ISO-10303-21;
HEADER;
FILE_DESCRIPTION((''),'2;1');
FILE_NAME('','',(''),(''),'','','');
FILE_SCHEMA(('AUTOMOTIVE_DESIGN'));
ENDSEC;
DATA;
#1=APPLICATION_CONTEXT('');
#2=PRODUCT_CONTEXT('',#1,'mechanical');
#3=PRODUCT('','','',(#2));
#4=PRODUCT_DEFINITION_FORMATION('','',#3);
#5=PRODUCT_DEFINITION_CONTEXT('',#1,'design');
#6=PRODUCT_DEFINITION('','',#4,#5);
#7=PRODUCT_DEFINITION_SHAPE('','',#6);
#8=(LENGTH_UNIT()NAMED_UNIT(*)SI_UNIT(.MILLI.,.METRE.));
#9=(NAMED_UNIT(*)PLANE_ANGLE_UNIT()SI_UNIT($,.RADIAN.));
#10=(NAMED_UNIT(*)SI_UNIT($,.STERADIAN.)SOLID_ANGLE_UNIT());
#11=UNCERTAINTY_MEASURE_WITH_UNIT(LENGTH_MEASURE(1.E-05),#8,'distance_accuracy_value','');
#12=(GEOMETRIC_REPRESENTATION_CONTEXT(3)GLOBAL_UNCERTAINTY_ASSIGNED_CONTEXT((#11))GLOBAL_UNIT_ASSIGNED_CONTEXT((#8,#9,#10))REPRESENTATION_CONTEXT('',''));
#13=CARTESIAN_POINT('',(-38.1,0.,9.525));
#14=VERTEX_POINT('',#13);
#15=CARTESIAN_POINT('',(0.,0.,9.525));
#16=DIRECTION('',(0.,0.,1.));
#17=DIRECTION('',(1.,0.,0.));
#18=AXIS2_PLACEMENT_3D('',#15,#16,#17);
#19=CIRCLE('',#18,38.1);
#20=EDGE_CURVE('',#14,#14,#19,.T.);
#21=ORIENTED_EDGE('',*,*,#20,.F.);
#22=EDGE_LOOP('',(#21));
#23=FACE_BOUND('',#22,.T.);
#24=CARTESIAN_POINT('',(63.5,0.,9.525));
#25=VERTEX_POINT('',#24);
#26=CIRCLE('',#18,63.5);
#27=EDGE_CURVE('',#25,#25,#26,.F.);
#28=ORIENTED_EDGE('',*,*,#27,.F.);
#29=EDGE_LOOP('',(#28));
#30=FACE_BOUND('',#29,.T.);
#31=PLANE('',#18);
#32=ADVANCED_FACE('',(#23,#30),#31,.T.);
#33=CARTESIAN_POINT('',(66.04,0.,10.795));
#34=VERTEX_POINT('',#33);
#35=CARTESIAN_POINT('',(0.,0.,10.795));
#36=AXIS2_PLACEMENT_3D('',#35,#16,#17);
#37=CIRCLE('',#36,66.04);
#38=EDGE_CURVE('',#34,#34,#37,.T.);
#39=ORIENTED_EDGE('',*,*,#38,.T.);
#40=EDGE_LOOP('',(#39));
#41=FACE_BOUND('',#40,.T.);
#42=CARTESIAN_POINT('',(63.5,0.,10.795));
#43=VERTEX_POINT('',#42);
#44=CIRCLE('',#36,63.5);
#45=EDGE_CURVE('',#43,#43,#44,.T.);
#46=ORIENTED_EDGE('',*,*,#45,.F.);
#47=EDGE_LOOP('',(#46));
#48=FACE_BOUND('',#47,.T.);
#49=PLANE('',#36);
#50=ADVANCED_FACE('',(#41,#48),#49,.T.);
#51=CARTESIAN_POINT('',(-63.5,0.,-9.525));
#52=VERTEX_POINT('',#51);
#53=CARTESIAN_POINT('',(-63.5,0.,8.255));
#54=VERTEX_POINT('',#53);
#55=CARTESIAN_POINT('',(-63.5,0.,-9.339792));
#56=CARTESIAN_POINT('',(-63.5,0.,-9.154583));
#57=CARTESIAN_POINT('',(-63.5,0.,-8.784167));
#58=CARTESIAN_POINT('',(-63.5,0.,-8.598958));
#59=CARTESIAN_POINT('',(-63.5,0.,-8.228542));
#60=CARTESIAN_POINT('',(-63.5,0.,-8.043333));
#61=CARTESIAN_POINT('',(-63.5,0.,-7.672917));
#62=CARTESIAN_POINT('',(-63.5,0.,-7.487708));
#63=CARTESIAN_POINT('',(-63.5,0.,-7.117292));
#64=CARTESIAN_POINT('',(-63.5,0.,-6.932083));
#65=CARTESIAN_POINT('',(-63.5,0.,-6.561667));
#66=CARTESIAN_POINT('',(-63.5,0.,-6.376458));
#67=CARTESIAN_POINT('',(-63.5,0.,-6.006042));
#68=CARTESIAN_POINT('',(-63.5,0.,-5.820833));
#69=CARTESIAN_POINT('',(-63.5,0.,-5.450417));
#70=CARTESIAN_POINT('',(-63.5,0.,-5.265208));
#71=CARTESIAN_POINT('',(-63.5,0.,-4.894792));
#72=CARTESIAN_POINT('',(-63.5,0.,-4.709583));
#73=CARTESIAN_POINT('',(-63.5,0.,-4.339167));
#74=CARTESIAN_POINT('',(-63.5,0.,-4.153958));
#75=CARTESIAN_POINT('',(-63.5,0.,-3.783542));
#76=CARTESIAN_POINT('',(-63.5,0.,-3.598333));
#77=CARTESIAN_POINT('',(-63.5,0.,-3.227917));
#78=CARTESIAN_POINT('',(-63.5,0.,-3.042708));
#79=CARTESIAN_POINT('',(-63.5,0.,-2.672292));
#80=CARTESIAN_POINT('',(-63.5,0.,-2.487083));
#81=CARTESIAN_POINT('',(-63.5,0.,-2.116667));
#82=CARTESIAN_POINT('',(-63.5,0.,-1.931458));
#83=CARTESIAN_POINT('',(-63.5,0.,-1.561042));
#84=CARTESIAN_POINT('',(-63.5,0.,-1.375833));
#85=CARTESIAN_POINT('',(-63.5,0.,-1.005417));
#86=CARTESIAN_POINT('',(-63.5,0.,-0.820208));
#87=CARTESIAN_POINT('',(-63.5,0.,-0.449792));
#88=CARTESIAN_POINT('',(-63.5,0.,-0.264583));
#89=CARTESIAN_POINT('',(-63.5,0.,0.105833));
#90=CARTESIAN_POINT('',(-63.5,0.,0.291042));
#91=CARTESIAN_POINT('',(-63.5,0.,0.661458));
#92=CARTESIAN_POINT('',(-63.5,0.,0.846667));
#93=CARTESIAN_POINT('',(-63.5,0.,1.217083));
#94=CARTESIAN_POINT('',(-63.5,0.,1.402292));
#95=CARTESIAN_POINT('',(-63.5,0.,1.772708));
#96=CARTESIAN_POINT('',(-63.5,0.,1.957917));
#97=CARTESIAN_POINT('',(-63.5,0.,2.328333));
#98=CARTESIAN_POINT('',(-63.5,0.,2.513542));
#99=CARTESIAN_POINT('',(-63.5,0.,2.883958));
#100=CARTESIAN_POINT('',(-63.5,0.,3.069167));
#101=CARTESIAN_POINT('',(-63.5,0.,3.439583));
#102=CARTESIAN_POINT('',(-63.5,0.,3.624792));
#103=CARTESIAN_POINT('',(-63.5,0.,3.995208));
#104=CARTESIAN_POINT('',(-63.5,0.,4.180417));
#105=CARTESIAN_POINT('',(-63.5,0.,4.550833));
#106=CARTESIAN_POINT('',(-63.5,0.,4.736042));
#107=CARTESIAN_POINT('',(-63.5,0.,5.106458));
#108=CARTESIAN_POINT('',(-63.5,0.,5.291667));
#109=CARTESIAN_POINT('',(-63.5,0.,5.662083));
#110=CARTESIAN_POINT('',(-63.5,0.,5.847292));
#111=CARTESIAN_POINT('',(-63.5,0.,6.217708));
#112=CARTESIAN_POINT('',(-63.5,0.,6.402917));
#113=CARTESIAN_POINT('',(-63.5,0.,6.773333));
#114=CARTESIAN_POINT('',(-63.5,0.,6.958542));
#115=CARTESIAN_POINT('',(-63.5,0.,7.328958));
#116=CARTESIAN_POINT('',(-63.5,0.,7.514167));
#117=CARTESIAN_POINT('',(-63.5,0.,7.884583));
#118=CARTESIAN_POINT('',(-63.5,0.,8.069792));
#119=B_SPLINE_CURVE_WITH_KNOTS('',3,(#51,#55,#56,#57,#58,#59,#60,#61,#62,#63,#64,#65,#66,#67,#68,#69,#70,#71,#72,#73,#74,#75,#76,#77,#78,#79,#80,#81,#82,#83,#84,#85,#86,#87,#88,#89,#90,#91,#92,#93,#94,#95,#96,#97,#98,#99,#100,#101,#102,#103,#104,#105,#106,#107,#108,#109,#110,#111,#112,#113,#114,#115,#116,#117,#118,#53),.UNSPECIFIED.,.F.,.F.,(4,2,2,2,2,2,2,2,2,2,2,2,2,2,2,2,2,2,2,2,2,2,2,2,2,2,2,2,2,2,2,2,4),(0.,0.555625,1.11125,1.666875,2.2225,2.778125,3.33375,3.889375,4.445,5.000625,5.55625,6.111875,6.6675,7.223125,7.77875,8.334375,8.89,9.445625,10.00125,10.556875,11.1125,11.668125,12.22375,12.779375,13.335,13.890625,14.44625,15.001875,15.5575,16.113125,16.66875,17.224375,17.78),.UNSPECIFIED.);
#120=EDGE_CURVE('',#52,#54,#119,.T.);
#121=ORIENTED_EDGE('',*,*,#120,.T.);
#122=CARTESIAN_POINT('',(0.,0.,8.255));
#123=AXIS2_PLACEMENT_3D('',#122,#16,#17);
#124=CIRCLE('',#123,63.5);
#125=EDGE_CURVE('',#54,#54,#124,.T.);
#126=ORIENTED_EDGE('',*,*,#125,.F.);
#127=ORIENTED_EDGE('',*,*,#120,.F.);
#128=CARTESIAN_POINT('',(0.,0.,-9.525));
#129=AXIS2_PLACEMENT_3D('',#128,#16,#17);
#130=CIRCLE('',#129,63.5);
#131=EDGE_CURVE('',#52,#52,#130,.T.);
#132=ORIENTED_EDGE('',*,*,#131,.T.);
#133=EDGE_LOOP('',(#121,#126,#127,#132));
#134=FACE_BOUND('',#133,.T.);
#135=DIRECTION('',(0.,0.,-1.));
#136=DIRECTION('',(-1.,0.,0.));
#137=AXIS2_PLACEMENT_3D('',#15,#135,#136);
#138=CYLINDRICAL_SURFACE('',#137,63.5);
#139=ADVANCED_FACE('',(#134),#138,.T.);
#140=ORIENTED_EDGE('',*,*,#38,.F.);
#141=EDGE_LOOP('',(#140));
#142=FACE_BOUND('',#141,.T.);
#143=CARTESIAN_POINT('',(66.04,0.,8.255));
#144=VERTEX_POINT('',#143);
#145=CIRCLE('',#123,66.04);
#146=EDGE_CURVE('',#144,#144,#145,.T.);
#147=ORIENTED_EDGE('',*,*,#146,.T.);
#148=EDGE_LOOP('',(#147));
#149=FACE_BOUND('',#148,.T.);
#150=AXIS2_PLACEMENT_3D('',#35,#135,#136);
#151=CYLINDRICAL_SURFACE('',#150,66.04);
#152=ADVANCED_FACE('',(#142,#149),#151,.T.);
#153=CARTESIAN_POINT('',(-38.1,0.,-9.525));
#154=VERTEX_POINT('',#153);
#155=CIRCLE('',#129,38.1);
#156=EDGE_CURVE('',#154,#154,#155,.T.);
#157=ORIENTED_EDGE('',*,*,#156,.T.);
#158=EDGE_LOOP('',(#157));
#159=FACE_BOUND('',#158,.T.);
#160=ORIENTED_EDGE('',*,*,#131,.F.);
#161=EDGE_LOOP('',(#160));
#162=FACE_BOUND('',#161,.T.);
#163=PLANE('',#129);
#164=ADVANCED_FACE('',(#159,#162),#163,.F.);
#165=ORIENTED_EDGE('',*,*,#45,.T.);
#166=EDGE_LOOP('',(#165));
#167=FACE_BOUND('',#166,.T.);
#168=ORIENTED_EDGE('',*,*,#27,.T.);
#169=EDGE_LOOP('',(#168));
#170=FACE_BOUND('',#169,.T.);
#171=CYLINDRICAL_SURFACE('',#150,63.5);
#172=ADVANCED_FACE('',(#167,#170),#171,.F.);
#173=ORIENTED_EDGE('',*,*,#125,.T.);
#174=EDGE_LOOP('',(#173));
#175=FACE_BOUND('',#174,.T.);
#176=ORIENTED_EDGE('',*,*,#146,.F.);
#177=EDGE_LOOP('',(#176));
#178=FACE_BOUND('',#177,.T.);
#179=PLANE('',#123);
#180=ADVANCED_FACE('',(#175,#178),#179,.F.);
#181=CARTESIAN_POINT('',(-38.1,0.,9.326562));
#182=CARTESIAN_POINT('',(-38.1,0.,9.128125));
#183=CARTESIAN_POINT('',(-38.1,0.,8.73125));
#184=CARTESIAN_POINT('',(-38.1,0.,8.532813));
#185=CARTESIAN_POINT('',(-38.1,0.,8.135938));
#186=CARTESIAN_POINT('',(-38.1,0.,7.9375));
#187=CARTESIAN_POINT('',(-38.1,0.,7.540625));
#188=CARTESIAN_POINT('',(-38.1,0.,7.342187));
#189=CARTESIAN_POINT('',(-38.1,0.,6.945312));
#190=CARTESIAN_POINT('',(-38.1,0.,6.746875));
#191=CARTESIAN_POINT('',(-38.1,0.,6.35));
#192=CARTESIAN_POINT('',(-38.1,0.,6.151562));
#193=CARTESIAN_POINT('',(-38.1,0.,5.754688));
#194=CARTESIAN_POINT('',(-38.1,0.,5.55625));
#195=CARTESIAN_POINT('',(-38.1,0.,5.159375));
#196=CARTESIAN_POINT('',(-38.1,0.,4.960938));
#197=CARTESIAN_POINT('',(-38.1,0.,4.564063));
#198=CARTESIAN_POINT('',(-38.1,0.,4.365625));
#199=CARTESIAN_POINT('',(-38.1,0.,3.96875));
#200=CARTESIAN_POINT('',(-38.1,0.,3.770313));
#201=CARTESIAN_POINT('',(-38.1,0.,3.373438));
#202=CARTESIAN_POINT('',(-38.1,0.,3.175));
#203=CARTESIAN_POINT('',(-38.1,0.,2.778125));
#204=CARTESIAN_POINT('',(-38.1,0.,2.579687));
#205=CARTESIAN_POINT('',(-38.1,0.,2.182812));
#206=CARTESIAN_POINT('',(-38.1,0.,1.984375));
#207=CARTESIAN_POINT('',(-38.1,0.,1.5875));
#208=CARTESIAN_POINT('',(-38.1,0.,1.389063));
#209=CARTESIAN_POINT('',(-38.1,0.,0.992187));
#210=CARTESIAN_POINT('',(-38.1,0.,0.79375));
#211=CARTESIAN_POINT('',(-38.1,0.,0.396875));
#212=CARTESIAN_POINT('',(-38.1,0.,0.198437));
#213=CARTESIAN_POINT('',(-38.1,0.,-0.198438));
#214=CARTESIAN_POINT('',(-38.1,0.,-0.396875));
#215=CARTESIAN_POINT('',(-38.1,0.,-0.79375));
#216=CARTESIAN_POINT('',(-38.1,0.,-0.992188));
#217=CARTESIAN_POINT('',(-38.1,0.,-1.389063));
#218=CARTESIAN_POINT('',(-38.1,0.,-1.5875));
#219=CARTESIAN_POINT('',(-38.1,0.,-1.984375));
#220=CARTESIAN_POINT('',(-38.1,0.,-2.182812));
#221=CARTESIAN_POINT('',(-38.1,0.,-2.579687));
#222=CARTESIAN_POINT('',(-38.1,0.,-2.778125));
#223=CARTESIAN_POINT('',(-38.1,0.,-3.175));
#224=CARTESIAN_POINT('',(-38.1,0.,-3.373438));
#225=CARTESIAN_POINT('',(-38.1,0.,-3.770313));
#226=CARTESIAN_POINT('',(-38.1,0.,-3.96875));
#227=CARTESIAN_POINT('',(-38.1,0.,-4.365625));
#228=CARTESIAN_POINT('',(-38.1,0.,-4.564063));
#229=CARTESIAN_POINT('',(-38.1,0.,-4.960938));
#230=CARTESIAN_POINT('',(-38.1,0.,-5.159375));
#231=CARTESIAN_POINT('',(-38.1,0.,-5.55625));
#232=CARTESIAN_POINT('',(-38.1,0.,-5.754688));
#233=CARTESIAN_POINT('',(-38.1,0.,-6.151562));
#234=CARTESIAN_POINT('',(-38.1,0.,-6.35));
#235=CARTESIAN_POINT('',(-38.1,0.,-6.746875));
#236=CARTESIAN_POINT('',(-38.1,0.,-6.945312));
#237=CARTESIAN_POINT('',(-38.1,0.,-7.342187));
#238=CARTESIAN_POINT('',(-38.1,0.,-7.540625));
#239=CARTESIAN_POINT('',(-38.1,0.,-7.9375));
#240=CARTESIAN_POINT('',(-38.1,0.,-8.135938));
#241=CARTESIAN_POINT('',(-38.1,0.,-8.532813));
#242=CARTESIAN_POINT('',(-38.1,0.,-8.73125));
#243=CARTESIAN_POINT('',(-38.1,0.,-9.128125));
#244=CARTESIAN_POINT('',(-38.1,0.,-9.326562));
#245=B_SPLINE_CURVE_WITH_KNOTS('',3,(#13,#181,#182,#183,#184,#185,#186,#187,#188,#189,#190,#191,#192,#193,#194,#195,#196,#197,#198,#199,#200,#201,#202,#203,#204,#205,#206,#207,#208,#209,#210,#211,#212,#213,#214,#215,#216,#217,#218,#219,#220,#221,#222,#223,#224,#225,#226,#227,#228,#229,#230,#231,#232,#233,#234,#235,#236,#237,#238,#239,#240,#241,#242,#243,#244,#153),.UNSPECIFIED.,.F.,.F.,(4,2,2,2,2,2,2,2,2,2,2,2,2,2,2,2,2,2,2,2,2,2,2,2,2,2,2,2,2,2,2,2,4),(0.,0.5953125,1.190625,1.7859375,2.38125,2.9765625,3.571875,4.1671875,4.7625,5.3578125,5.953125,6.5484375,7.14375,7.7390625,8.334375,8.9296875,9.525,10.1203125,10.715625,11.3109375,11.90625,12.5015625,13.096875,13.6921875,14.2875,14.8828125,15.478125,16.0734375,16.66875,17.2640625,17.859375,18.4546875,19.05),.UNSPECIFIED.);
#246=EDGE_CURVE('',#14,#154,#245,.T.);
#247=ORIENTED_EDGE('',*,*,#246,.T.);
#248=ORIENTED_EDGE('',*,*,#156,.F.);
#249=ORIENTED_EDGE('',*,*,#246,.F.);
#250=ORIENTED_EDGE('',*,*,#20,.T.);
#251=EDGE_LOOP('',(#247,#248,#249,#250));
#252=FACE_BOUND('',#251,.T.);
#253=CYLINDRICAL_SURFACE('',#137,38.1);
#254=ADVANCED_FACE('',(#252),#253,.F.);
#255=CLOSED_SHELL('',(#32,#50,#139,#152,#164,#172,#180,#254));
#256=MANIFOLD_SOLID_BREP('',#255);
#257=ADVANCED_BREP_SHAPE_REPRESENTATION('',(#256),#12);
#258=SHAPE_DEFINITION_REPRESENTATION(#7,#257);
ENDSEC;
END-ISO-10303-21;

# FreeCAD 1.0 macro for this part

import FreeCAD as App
import Part
import Sketcher

V = App.Vector
Q = App.Units.Quantity

doc = App.newDocument("Part")
body = doc.addObject("PartDesign::Body", "Body")

# Sketch on XY plane
sketch1 = body.newObject("Sketcher::SketchObject", "Sketch")
sketch1.AttachmentSupport = (doc.getObject("XY_Plane"), [""])
sketch1.MapMode = "FlatFace"
sketch1.addGeometry(Part.Circle(V(0, 0, 0), V(0, 0, 1), 64), False)
sketch1.addGeometry(Part.Circle(V(0, 0, 0), V(0, 0, 1), 38), False)
sketch1.addConstraint(Sketcher.Constraint("Coincident", 0, 3, -1, 1))
sketch1.addConstraint(Sketcher.Constraint("Coincident", 1, 3, -1, 1))
sketch1.addConstraint(Sketcher.Constraint("Diameter", 0, Q("5 in")))
sketch1.addConstraint(Sketcher.Constraint("Diameter", 1, Q("3 in")))
pad1 = body.newObject("PartDesign::Pad", "Pad")
pad1.Profile = sketch1
pad1.Length = Q("0.75 in")
pad1.Midplane = True

# Sketch on XY plane
sketch2 = body.newObject("Sketcher::SketchObject", "Sketch001")
sketch2.AttachmentSupport = (doc.getObject("XY_Plane"), [""])
sketch2.MapMode = "FlatFace"
sketch2.AttachmentOffset = App.Placement(V(0, 0, 0.375 * 25.4), App.Rotation())
sketch2.addGeometry(Part.Circle(V(0, 0, 0), V(0, 0, 1), 66), False)
sketch2.addGeometry(Part.Circle(V(0, 0, 0), V(0, 0, 1), 64), False)
sketch2.addConstraint(Sketcher.Constraint("Coincident", 0, 3, -1, 1))
sketch2.addConstraint(Sketcher.Constraint("Coincident", 1, 3, -1, 1))
sketch2.addConstraint(Sketcher.Constraint("Diameter", 1, Q("5 in")))
sketch2.addConstraint(Sketcher.Constraint("Diameter", 0, Q("5.2 in")))
pad2 = body.newObject("PartDesign::Pad", "Pad001")
pad2.Profile = sketch2
pad2.Length = Q("0.1 in")
pad2.Midplane = True

doc.recompute()
